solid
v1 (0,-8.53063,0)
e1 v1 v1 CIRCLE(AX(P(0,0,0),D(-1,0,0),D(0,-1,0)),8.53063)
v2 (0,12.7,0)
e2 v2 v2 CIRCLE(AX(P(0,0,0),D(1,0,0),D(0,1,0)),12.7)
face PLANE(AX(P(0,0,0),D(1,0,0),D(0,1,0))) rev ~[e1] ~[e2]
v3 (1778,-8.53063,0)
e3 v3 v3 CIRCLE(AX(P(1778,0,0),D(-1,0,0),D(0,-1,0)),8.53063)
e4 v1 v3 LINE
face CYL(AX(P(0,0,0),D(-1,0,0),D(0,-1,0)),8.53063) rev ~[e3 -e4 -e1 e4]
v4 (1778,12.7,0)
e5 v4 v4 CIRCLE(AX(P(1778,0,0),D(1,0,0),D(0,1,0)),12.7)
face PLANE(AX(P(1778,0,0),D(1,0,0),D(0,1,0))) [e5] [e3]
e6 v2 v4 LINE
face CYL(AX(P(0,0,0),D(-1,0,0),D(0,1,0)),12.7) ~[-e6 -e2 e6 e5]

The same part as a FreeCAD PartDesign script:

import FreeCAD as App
import Part
import Sketcher
from FreeCAD import Vector
Q = App.Units.Quantity

doc = App.newDocument("Part")
body = doc.addObject("PartDesign::Body", "Body")

# Sketch on YZ plane
sketch1 = body.newObject("Sketcher::SketchObject", "Sketch")
sketch1.AttachmentSupport = (doc.getObject("YZ_Plane"), [""])
sketch1.MapMode = "FlatFace"
sketch1.addGeometry(Part.Circle(Vector(0, 0, 0), Vector(0, 0, 1), 13), False)
sketch1.addConstraint([
    Sketcher.Constraint("Coincident", 0, 3, -1, 1),
    Sketcher.Constraint("Diameter", 0, Q("1 in")),
])
pad1 = body.newObject("PartDesign::Pad", "Pad")
pad1.Profile = sketch1
pad1.Length = Q("70 in")

# Sketch on YZ plane
sketch2 = body.newObject("Sketcher::SketchObject", "Sketch001")
sketch2.AttachmentSupport = (doc.getObject("YZ_Plane"), [""])
sketch2.MapMode = "FlatFace"
sketch2.addGeometry(Part.Circle(Vector(0, 0, 0), Vector(0, 0, 1), 9), False)
sketch2.addConstraint([
    Sketcher.Constraint("Coincident", 0, 3, -1, 1),
    Sketcher.Constraint("Diameter", 0, 17.06126),
])
pocket1 = body.newObject("PartDesign::Pocket", "Pocket")
pocket1.Profile = sketch2
pocket1.Type = "ThroughAll"
pocket1.Reversed = True

doc.recompute()
